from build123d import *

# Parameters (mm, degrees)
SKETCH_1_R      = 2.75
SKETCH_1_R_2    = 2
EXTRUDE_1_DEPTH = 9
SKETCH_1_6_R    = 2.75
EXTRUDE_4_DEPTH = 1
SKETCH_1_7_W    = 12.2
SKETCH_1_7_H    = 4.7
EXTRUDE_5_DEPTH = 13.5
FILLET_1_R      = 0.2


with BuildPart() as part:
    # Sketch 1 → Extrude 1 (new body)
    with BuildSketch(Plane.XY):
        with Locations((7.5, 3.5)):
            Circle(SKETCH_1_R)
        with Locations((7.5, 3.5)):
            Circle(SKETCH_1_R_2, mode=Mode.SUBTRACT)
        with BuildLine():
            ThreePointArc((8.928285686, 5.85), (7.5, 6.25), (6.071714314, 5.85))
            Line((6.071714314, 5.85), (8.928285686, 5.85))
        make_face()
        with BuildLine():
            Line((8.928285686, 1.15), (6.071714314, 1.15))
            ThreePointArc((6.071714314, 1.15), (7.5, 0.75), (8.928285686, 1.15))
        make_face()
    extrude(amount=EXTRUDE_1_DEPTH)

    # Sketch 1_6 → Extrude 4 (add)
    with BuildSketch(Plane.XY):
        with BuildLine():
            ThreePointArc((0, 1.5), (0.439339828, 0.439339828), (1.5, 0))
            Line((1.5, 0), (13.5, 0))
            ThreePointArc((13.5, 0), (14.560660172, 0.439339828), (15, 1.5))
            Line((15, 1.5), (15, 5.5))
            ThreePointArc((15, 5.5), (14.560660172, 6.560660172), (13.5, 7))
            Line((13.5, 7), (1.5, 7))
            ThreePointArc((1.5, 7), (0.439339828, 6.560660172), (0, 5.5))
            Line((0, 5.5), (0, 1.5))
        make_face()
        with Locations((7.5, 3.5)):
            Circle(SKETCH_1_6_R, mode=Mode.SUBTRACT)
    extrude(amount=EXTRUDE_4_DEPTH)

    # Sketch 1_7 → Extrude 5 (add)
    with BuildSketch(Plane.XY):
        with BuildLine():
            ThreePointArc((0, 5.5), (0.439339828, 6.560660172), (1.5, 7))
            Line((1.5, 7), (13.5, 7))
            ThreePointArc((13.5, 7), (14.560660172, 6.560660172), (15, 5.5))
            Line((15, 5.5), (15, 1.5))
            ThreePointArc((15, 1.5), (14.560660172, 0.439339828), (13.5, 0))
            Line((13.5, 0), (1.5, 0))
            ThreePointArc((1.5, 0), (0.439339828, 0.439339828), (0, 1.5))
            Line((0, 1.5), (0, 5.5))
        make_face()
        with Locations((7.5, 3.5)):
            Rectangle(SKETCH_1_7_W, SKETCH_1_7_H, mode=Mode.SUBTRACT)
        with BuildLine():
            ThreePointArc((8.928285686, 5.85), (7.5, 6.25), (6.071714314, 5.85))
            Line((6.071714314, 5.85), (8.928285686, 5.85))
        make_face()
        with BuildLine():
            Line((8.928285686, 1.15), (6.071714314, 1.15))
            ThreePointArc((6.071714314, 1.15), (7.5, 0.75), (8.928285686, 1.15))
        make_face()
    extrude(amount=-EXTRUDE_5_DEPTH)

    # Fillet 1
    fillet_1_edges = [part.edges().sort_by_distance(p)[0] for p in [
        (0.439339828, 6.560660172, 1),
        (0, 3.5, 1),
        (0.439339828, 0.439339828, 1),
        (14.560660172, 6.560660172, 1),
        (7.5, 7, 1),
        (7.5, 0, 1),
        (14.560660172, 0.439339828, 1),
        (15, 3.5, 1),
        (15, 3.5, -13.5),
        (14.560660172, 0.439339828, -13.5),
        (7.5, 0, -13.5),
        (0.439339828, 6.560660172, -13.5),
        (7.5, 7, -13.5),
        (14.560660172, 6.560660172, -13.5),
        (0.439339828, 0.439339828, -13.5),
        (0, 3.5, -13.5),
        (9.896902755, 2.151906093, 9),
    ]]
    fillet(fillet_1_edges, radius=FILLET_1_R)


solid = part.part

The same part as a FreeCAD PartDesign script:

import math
import FreeCAD as App
import Part
import Sketcher
from FreeCAD import Vector


def edges_at(feature, points):
    """Names of the edges that pass closest to the given points."""
    edges = feature.Shape.Edges
    near = lambda p: min(range(len(edges)), key=lambda i: edges[i].distToShape(Part.Vertex(*p))[0])
    return sorted({f"Edge{near(p) + 1}" for p in points})

doc = App.newDocument("Part")
body = doc.addObject("PartDesign::Body", "Body")

sketch1 = doc.addObject("Sketcher::SketchObject", "Sketch")
body.addObject(sketch1)
sketch1.AttachmentSupport = (doc.XY_Plane, [""])
sketch1.MapMode = "FlatFace"
sketch1.addGeometry(Part.ArcOfCircle(Part.Circle(Vector(7.5, 3.5, 0), Vector(0, 0, 1), 2.8), math.radians(59), math.radians(121)), False)
sketch1.addGeometry(Part.ArcOfCircle(Part.Circle(Vector(7.5, 3.5, 0), Vector(0, 0, 1), 2.8), math.radians(121), math.radians(239)), False)
sketch1.addGeometry(Part.ArcOfCircle(Part.Circle(Vector(7.5, 3.5, 0), Vector(0, 0, 1), 2.8), math.radians(-121), math.radians(-59)), False)
sketch1.addGeometry(Part.ArcOfCircle(Part.Circle(Vector(7.5, 3.5, 0), Vector(0, 0, 1), 2.8), math.radians(-59), math.radians(59)), False)
sketch1.addGeometry(Part.Circle(Vector(7.5, 3.5, 0), Vector(0, 0, 1), 2), False)
sketch1.addConstraint(Sketcher.Constraint("Tangent", 0, 2, 1, 1))
sketch1.addConstraint(Sketcher.Constraint("Tangent", 1, 2, 2, 1))
sketch1.addConstraint(Sketcher.Constraint("Tangent", 2, 2, 3, 1))
sketch1.addConstraint(Sketcher.Constraint("Tangent", 3, 2, 0, 1))
sketch1.addConstraint(Sketcher.Constraint("Coincident", 4, 3, 0, 3))
sketch1.addConstraint(Sketcher.Constraint("Equal", 0, 1))
sketch1.addConstraint(Sketcher.Constraint("Horizontal", 1, 2, 2, 2))
sketch1.addConstraint(Sketcher.Constraint("Horizontal", 0, 2, 3, 2))
sketch1.addConstraint(Sketcher.Constraint("Vertical", 0, 2, 1, 2))
sketch1.addConstraint(Sketcher.Constraint("Diameter", 4, 4.0))
sketch1.addConstraint(Sketcher.Constraint("Radius", 0, 2.75))
sketch1.addConstraint(Sketcher.Constraint("DistanceX", -1, 1, 0, 3, 7.5))
sketch1.addConstraint(Sketcher.Constraint("DistanceY", -1, 1, 0, 3, 3.5))
sketch1.addConstraint(Sketcher.Constraint("DistanceY", -1, 1, 0, 2, 5.85))
pad1 = doc.addObject("PartDesign::Pad", "Pad")
body.addObject(pad1)
pad1.Profile = sketch1
pad1.Length = 9

sketch2 = doc.addObject("Sketcher::SketchObject", "Sketch001")
body.addObject(sketch2)
sketch2.AttachmentSupport = (doc.XY_Plane, [""])
sketch2.MapMode = "FlatFace"
sketch2.addGeometry(Part.ArcOfCircle(Part.Circle(Vector(1.5, 1.5, 0), Vector(0, 0, 1), 1.5), math.radians(180), math.radians(270)), False)
sketch2.addGeometry(Part.LineSegment(Vector(1.5, 0, 0), Vector(13.5, 0, 0)), False)
sketch2.addGeometry(Part.ArcOfCircle(Part.Circle(Vector(13.5, 1.5, 0), Vector(0, 0, 1), 1.5), math.radians(-90), math.radians(0)), False)
sketch2.addGeometry(Part.LineSegment(Vector(15, 1.5, 0), Vector(15, 5.5, 0)), False)
sketch2.addGeometry(Part.ArcOfCircle(Part.Circle(Vector(13.5, 5.5, 0), Vector(0, 0, 1), 1.5), math.radians(0), math.radians(90)), False)
sketch2.addGeometry(Part.LineSegment(Vector(13.5, 7, 0), Vector(1.5, 7, 0)), False)
sketch2.addGeometry(Part.ArcOfCircle(Part.Circle(Vector(1.5, 5.5, 0), Vector(0, 0, 1), 1.5), math.radians(90), math.radians(180)), False)
sketch2.addGeometry(Part.LineSegment(Vector(0, 5.5, 0), Vector(0, 1.5, 0)), False)
sketch2.addGeometry(Part.Circle(Vector(7.5, 3.5, 0), Vector(0, 0, 1), 2.8), False)
sketch2.addConstraint(Sketcher.Constraint("Tangent", 0, 2, 1, 1))
sketch2.addConstraint(Sketcher.Constraint("Tangent", 1, 2, 2, 1))
sketch2.addConstraint(Sketcher.Constraint("Tangent", 2, 2, 3, 1))
sketch2.addConstraint(Sketcher.Constraint("Tangent", 3, 2, 4, 1))
sketch2.addConstraint(Sketcher.Constraint("Tangent", 4, 2, 5, 1))
sketch2.addConstraint(Sketcher.Constraint("Tangent", 5, 2, 6, 1))
sketch2.addConstraint(Sketcher.Constraint("Tangent", 6, 2, 7, 1))
sketch2.addConstraint(Sketcher.Constraint("Tangent", 7, 2, 0, 1))
sketch2.addConstraint(Sketcher.Constraint("Horizontal", 1))
sketch2.addConstraint(Sketcher.Constraint("Vertical", 3))
sketch2.addConstraint(Sketcher.Constraint("Horizontal", 5))
sketch2.addConstraint(Sketcher.Constraint("Vertical", 7))
sketch2.addConstraint(Sketcher.Constraint("Equal", 0, 2))
sketch2.addConstraint(Sketcher.Constraint("Equal", 2, 4))
sketch2.addConstraint(Sketcher.Constraint("Equal", 4, 6))
sketch2.addConstraint(Sketcher.Constraint("PointOnObject", 0, 2, -1))
sketch2.addConstraint(Sketcher.Constraint("PointOnObject", 6, 2, -2))
sketch2.addConstraint(Sketcher.Constraint("Diameter", 8, 5.5))
sketch2.addConstraint(Sketcher.Constraint("Radius", 0, 1.5))
sketch2.addConstraint(Sketcher.Constraint("DistanceX", 1, 1, 1, 2, 12.0))
sketch2.addConstraint(Sketcher.Constraint("DistanceY", 3, 1, 3, 2, 4.0))
sketch2.addConstraint(Sketcher.Constraint("DistanceX", 0, 3, 8, 3, 6.0))
sketch2.addConstraint(Sketcher.Constraint("DistanceY", 0, 3, 8, 3, 2.0))
pad2 = doc.addObject("PartDesign::Pad", "Pad001")
body.addObject(pad2)
pad2.Profile = sketch2
pad2.Length = 1

sketch3 = doc.addObject("Sketcher::SketchObject", "Sketch002")
body.addObject(sketch3)
sketch3.AttachmentSupport = (doc.XY_Plane, [""])
sketch3.MapMode = "FlatFace"
sketch3.addGeometry(Part.ArcOfCircle(Part.Circle(Vector(1.5, 5.5, 0), Vector(0, 0, 1), 1.5), math.radians(90), math.radians(180)), False)
sketch3.addGeometry(Part.LineSegment(Vector(0, 5.5, 0), Vector(0, 1.5, 0)), False)
sketch3.addGeometry(Part.ArcOfCircle(Part.Circle(Vector(1.5, 1.5, 0), Vector(0, 0, 1), 1.5), math.radians(180), math.radians(270)), False)
sketch3.addGeometry(Part.LineSegment(Vector(1.5, 0, 0), Vector(13.5, 0, 0)), False)
sketch3.addGeometry(Part.ArcOfCircle(Part.Circle(Vector(13.5, 1.5, 0), Vector(0, 0, 1), 1.5), math.radians(-90), math.radians(0)), False)
sketch3.addGeometry(Part.LineSegment(Vector(15, 1.5, 0), Vector(15, 5.5, 0)), False)
sketch3.addGeometry(Part.ArcOfCircle(Part.Circle(Vector(13.5, 5.5, 0), Vector(0, 0, 1), 1.5), math.radians(0), math.radians(90)), False)
sketch3.addGeometry(Part.LineSegment(Vector(13.5, 7, 0), Vector(1.5, 7, 0)), False)
sketch3.addGeometry(Part.LineSegment(Vector(1.4, 1.1, 0), Vector(1.4, 5.8, 0)), False)
sketch3.addGeometry(Part.LineSegment(Vector(1.4, 5.8, 0), Vector(13.6, 5.8, 0)), False)
sketch3.addGeometry(Part.LineSegment(Vector(13.6, 5.8, 0), Vector(13.6, 1.1, 0)), False)
sketch3.addGeometry(Part.LineSegment(Vector(13.6, 1.1, 0), Vector(1.4, 1.1, 0)), False)
sketch3.addConstraint(Sketcher.Constraint("Tangent", 0, 2, 1, 1))
sketch3.addConstraint(Sketcher.Constraint("Tangent", 1, 2, 2, 1))
sketch3.addConstraint(Sketcher.Constraint("Tangent", 2, 2, 3, 1))
sketch3.addConstraint(Sketcher.Constraint("Tangent", 3, 2, 4, 1))
sketch3.addConstraint(Sketcher.Constraint("Tangent", 4, 2, 5, 1))
sketch3.addConstraint(Sketcher.Constraint("Tangent", 5, 2, 6, 1))
sketch3.addConstraint(Sketcher.Constraint("Tangent", 6, 2, 7, 1))
sketch3.addConstraint(Sketcher.Constraint("Tangent", 7, 2, 0, 1))
sketch3.addConstraint(Sketcher.Constraint("Coincident", 8, 2, 9, 1))
sketch3.addConstraint(Sketcher.Constraint("Coincident", 9, 2, 10, 1))
sketch3.addConstraint(Sketcher.Constraint("Coincident", 10, 2, 11, 1))
sketch3.addConstraint(Sketcher.Constraint("Coincident", 11, 2, 8, 1))
sketch3.addConstraint(Sketcher.Constraint("Vertical", 1))
sketch3.addConstraint(Sketcher.Constraint("Horizontal", 3))
sketch3.addConstraint(Sketcher.Constraint("Vertical", 5))
sketch3.addConstraint(Sketcher.Constraint("Horizontal", 7))
sketch3.addConstraint(Sketcher.Constraint("Vertical", 8))
sketch3.addConstraint(Sketcher.Constraint("Horizontal", 9))
sketch3.addConstraint(Sketcher.Constraint("Vertical", 10))
sketch3.addConstraint(Sketcher.Constraint("Horizontal", 11))
sketch3.addConstraint(Sketcher.Constraint("Equal", 0, 2))
sketch3.addConstraint(Sketcher.Constraint("Equal", 2, 4))
sketch3.addConstraint(Sketcher.Constraint("Equal", 4, 6))
sketch3.addConstraint(Sketcher.Constraint("PointOnObject", 0, 2, -2))
sketch3.addConstraint(Sketcher.Constraint("PointOnObject", 2, 2, -1))
sketch3.addConstraint(Sketcher.Constraint("Radius", 0, 1.5))
sketch3.addConstraint(Sketcher.Constraint("DistanceX", 3, 1, 3, 2, 12.0))
sketch3.addConstraint(Sketcher.Constraint("DistanceY", 1, 2, 1, 1, 4.0))
sketch3.addConstraint(Sketcher.Constraint("DistanceX", 9, 1, 9, 2, 12.2))
sketch3.addConstraint(Sketcher.Constraint("DistanceY", 8, 1, 8, 2, 4.7))
sketch3.addConstraint(Sketcher.Constraint("DistanceX", -1, 1, 8, 2, 1.4))
sketch3.addConstraint(Sketcher.Constraint("DistanceY", -1, 1, 8, 2, 5.85))
pad3 = doc.addObject("PartDesign::Pad", "Pad002")
body.addObject(pad3)
pad3.Profile = sketch3
pad3.Length = 13.5
pad3.Reversed = True
doc.recompute()

fillet = doc.addObject("PartDesign::Fillet", "Fillet")
body.addObject(fillet)
fillet.Base = (pad3, edges_at(pad3, [
    (0.439, 6.561, 1),
    (0, 3.5, 1),
    (0.439, 0.439, 1),
    (14.561, 6.561, 1),
    (7.5, 7, 1),
    (7.5, 0, 1),
    (14.561, 0.439, 1),
    (15, 3.5, 1),
    (15, 3.5, -13.5),
    (14.561, 0.439, -13.5),
    (7.5, 0, -13.5),
    (0.439, 6.561, -13.5),
    (7.5, 7, -13.5),
    (14.561, 6.561, -13.5),
    (0.439, 0.439, -13.5),
    (0, 3.5, -13.5),
    (10.25, 3.5, 9),
]))
fillet.Radius = 0.2

doc.recompute()
